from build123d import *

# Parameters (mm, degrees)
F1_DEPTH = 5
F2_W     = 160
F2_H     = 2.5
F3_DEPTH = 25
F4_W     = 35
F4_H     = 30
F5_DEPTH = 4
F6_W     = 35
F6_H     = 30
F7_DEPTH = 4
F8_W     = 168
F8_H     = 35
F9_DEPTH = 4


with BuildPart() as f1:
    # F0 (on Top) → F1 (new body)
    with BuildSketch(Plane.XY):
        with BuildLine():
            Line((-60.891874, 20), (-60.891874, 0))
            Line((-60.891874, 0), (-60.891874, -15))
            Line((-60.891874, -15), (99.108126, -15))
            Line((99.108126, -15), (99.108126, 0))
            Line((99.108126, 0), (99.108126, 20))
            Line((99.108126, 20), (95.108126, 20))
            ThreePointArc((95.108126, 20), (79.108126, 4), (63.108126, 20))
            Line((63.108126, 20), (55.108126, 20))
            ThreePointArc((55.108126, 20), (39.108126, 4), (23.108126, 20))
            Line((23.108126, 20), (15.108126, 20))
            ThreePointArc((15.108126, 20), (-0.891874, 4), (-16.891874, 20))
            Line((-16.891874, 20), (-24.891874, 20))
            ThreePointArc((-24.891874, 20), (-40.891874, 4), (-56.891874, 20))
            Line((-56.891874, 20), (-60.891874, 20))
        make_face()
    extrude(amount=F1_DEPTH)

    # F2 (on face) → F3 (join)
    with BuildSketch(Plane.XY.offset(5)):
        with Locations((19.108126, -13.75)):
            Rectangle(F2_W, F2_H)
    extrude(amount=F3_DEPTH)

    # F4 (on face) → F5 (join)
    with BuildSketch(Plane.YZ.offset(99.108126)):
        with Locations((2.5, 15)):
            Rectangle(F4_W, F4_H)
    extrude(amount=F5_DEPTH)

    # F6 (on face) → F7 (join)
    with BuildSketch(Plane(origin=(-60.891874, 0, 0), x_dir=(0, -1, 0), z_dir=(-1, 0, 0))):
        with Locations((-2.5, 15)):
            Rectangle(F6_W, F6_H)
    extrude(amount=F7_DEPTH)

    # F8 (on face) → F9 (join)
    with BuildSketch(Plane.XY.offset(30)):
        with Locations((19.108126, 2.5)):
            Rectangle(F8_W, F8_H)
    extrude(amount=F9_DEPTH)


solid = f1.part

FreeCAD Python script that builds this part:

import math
import FreeCAD as App
import Part
import Sketcher
from FreeCAD import Vector


def add_polygon(sketch, points):
    """Adds a closed chain of lines whose ends are joined by coincident constraints."""
    first, n = sketch.GeometryCount, len(points)
    for a, b in zip(points, points[1:] + points[:1]):
        sketch.addGeometry(Part.LineSegment(App.Vector(*a, 0), App.Vector(*b, 0)), False)
    for i in range(n):
        sketch.addConstraint(Sketcher.Constraint("Coincident", first + i, 2, first + (i + 1) % n, 1))

doc = App.newDocument("Part")
params = doc.addObject("Spreadsheet::Sheet", "Params")
for row, (alias, value) in enumerate([
    ("sketch1_radius", "16 mm"),
    ("sketch1_width", "160 mm"),
    ("sketch1_width2", "4 mm"),
    ("sketch1_height", "35 mm"),
    ("pad1_length", "5 mm"),
    ("sketch2_width", "160 mm"),
    ("sketch2_height", "2.5 mm"),
    ("pad2_length", "25 mm"),
    ("sketch3_width", "35 mm"),
    ("sketch3_height", "30 mm"),
    ("pad3_length", "4 mm"),
    ("sketch4_width", "35 mm"),
    ("sketch4_height", "30 mm"),
    ("pad4_length", "4 mm"),
    ("sketch5_width", "168 mm"),
    ("sketch5_height", "35 mm"),
    ("pad5_length", "4 mm"),
], start=1):
    params.set(f"A{row}", alias)
    params.set(f"B{row}", "=" + value)
    params.setAlias(f"B{row}", alias)

body = doc.addObject("PartDesign::Body", "Body")

sketch1 = body.newObject("Sketcher::SketchObject", "Sketch")
sketch1.AttachmentSupport = (doc.getObject("XY_Plane"), [""])
sketch1.MapMode = "FlatFace"
sketch1.addGeometry([
    Part.LineSegment(Vector(-60.9, 20, 0), Vector(-60.9, -15, 0)),
    Part.LineSegment(Vector(-60.9, -15, 0), Vector(99.1, -15, 0)),
    Part.LineSegment(Vector(99.1, -15, 0), Vector(99.1, 20, 0)),
    Part.LineSegment(Vector(99.1, 20, 0), Vector(95.1, 20, 0)),
    Part.ArcOfCircle(Part.Circle(Vector(79.1, 20, 0), Vector(0, 0, 1), 16), math.radians(180), math.radians(360)),
    Part.LineSegment(Vector(63.1, 20, 0), Vector(55.1, 20, 0)),
    Part.ArcOfCircle(Part.Circle(Vector(39.1, 20, 0), Vector(0, 0, 1), 16), math.radians(180), math.radians(360)),
    Part.LineSegment(Vector(23.1, 20, 0), Vector(15.1, 20, 0)),
    Part.ArcOfCircle(Part.Circle(Vector(-0.9, 20, 0), Vector(0, 0, 1), 16), math.radians(180), math.radians(360)),
    Part.LineSegment(Vector(-16.9, 20, 0), Vector(-24.9, 20, 0)),
    Part.ArcOfCircle(Part.Circle(Vector(-40.9, 20, 0), Vector(0, 0, 1), 16), math.radians(180), math.radians(360)),
    Part.LineSegment(Vector(-56.9, 20, 0), Vector(-60.9, 20, 0)),
], False)
sketch1.addConstraint([
    Sketcher.Constraint("Coincident", 0, 2, 1, 1),
    Sketcher.Constraint("Coincident", 1, 2, 2, 1),
    Sketcher.Constraint("Coincident", 2, 2, 3, 1),
    Sketcher.Constraint("Coincident", 3, 2, 4, 2),
    Sketcher.Constraint("Coincident", 4, 1, 5, 1),
    Sketcher.Constraint("Coincident", 5, 2, 6, 2),
    Sketcher.Constraint("Coincident", 6, 1, 7, 1),
    Sketcher.Constraint("Coincident", 7, 2, 8, 2),
    Sketcher.Constraint("Coincident", 8, 1, 9, 1),
    Sketcher.Constraint("Coincident", 9, 2, 10, 2),
    Sketcher.Constraint("Coincident", 10, 1, 11, 1),
    Sketcher.Constraint("Coincident", 11, 2, 0, 1),
    Sketcher.Constraint("Vertical", 0),
    Sketcher.Constraint("Horizontal", 1),
    Sketcher.Constraint("Vertical", 2),
    Sketcher.Constraint("Horizontal", 3),
    Sketcher.Constraint("Horizontal", 5),
    Sketcher.Constraint("Horizontal", 7),
    Sketcher.Constraint("Horizontal", 9),
    Sketcher.Constraint("Horizontal", 11),
    Sketcher.Constraint("Equal", 4, 6),
    Sketcher.Constraint("Equal", 6, 8),
    Sketcher.Constraint("Equal", 8, 10),
    Sketcher.Constraint("Horizontal", 4, 3, 6, 3),
    Sketcher.Constraint("Horizontal", 6, 3, 8, 3),
    Sketcher.Constraint("Horizontal", 8, 3, 10, 3),
    Sketcher.Constraint("Horizontal", 10, 3, 2, 2),
    Sketcher.Constraint("Horizontal", 3, 2, 4, 1),
    Sketcher.Constraint("Horizontal", 5, 2, 6, 1),
    Sketcher.Constraint("Horizontal", 7, 2, 8, 1),
    Sketcher.Constraint("Horizontal", 9, 2, 10, 1),
    Sketcher.Constraint("Equal", 5, 7),
    Sketcher.Constraint("Equal", 7, 9),
    Sketcher.Constraint("Equal", 3, 11),
    Sketcher.Constraint("Radius", 4, 16.0),
    Sketcher.Constraint("DistanceX", 1, 1, 1, 2, 160.0),
    Sketcher.Constraint("DistanceX", 3, 2, 3, 1, 4.0),
    Sketcher.Constraint("DistanceY", 0, 2, 0, 1, 35.0),
    Sketcher.Constraint("DistanceY", -1, 1, 4, 3, 20.0),
    Sketcher.Constraint("DistanceX", -1, 1, 4, 3, 79.108126),
])
sketch1.setExpression("Constraints[34]", "Params.sketch1_radius")
sketch1.setExpression("Constraints[35]", "Params.sketch1_width")
sketch1.setExpression("Constraints[36]", "Params.sketch1_width2")
sketch1.setExpression("Constraints[37]", "Params.sketch1_height")
pad1 = body.newObject("PartDesign::Pad", "Pad")
pad1.Profile = sketch1
pad1.setExpression("Length", "Params.pad1_length")

sketch2 = body.newObject("Sketcher::SketchObject", "Sketch001")
sketch2.AttachmentSupport = (doc.getObject("XY_Plane"), [""])
sketch2.MapMode = "FlatFace"
sketch2.AttachmentOffset = App.Placement(Vector(0, 0, 5), App.Rotation())
add_polygon(sketch2, [(-60.9, -12.5), (-60.9, -15), (99.1, -15), (99.1, -12.5)])
sketch2.addConstraint([
    Sketcher.Constraint("Vertical", 0),
    Sketcher.Constraint("Horizontal", 1),
    Sketcher.Constraint("Vertical", 2),
    Sketcher.Constraint("Horizontal", 3),
    Sketcher.Constraint("DistanceX", 1, 1, 1, 2, 160.0),
    Sketcher.Constraint("DistanceY", 0, 2, 0, 1, 2.5),
    Sketcher.Constraint("DistanceY", 0, 2, -1, 1, 15.0),
    Sketcher.Constraint("DistanceX", 0, 2, -1, 1, 60.891874),
])
sketch2.setExpression("Constraints[8]", "Params.sketch2_width")
sketch2.setExpression("Constraints[9]", "Params.sketch2_height")
pad2 = body.newObject("PartDesign::Pad", "Pad001")
pad2.Profile = sketch2
pad2.setExpression("Length", "Params.pad2_length")

sketch3 = body.newObject("Sketcher::SketchObject", "Sketch002")
sketch3.AttachmentSupport = (doc.getObject("YZ_Plane"), [""])
sketch3.MapMode = "FlatFace"
sketch3.AttachmentOffset = App.Placement(Vector(0, 0, 99.108126), App.Rotation())
add_polygon(sketch3, [(-15, 30), (-15, 0), (20, 0), (20, 30)])
sketch3.addConstraint([
    Sketcher.Constraint("Vertical", 0),
    Sketcher.Constraint("Horizontal", 1),
    Sketcher.Constraint("Vertical", 2),
    Sketcher.Constraint("Horizontal", 3),
    Sketcher.Constraint("PointOnObject", 0, 2, -1),
    Sketcher.Constraint("DistanceX", 1, 1, 1, 2, 35.0),
    Sketcher.Constraint("DistanceY", 0, 2, 0, 1, 30.0),
    Sketcher.Constraint("DistanceX", 0, 2, -1, 1, 15.0),
])
sketch3.setExpression("Constraints[9]", "Params.sketch3_width")
sketch3.setExpression("Constraints[10]", "Params.sketch3_height")
pad3 = body.newObject("PartDesign::Pad", "Pad002")
pad3.Profile = sketch3
pad3.setExpression("Length", "Params.pad3_length")

sketch4 = body.newObject("Sketcher::SketchObject", "Sketch003")
sketch4.AttachmentSupport = (doc.getObject("YZ_Plane"), [""])
sketch4.MapMode = "FlatFace"
sketch4.AttachmentOffset = App.Placement(Vector(0, 0, -60.891874), App.Rotation())
add_polygon(sketch4, [(20, 30), (20, 0), (-15, 0), (-15, 30)])
sketch4.addConstraint([
    Sketcher.Constraint("Vertical", 0),
    Sketcher.Constraint("Horizontal", 1),
    Sketcher.Constraint("Vertical", 2),
    Sketcher.Constraint("Horizontal", 3),
    Sketcher.Constraint("PointOnObject", 0, 2, -1),
    Sketcher.Constraint("DistanceX", 1, 2, 1, 1, 35.0),
    Sketcher.Constraint("DistanceY", 0, 2, 0, 1, 30.0),
    Sketcher.Constraint("DistanceX", -1, 1, 0, 2, 20.0),
])
sketch4.setExpression("Constraints[9]", "Params.sketch4_width")
sketch4.setExpression("Constraints[10]", "Params.sketch4_height")
pad4 = body.newObject("PartDesign::Pad", "Pad003")
pad4.Profile = sketch4
pad4.setExpression("Length", "Params.pad4_length")
pad4.Reversed = True

sketch5 = body.newObject("Sketcher::SketchObject", "Sketch004")
sketch5.AttachmentSupport = (doc.getObject("XY_Plane"), [""])
sketch5.MapMode = "FlatFace"
sketch5.AttachmentOffset = App.Placement(Vector(0, 0, 30), App.Rotation())
add_polygon(sketch5, [(-65, 20), (-65, -15), (103, -15), (103, 20)])
sketch5.addConstraint([
    Sketcher.Constraint("Vertical", 0),
    Sketcher.Constraint("Horizontal", 1),
    Sketcher.Constraint("Vertical", 2),
    Sketcher.Constraint("Horizontal", 3),
    Sketcher.Constraint("DistanceX", 1, 1, 1, 2, 168.0),
    Sketcher.Constraint("DistanceY", 0, 2, 0, 1, 35.0),
    Sketcher.Constraint("DistanceY", 0, 2, -1, 1, 15.0),
    Sketcher.Constraint("DistanceX", 0, 2, -1, 1, 64.891874),
])
sketch5.setExpression("Constraints[8]", "Params.sketch5_width")
sketch5.setExpression("Constraints[9]", "Params.sketch5_height")
pad5 = body.newObject("PartDesign::Pad", "Pad004")
pad5.Profile = sketch5
pad5.setExpression("Length", "Params.pad5_length")

doc.recompute()
